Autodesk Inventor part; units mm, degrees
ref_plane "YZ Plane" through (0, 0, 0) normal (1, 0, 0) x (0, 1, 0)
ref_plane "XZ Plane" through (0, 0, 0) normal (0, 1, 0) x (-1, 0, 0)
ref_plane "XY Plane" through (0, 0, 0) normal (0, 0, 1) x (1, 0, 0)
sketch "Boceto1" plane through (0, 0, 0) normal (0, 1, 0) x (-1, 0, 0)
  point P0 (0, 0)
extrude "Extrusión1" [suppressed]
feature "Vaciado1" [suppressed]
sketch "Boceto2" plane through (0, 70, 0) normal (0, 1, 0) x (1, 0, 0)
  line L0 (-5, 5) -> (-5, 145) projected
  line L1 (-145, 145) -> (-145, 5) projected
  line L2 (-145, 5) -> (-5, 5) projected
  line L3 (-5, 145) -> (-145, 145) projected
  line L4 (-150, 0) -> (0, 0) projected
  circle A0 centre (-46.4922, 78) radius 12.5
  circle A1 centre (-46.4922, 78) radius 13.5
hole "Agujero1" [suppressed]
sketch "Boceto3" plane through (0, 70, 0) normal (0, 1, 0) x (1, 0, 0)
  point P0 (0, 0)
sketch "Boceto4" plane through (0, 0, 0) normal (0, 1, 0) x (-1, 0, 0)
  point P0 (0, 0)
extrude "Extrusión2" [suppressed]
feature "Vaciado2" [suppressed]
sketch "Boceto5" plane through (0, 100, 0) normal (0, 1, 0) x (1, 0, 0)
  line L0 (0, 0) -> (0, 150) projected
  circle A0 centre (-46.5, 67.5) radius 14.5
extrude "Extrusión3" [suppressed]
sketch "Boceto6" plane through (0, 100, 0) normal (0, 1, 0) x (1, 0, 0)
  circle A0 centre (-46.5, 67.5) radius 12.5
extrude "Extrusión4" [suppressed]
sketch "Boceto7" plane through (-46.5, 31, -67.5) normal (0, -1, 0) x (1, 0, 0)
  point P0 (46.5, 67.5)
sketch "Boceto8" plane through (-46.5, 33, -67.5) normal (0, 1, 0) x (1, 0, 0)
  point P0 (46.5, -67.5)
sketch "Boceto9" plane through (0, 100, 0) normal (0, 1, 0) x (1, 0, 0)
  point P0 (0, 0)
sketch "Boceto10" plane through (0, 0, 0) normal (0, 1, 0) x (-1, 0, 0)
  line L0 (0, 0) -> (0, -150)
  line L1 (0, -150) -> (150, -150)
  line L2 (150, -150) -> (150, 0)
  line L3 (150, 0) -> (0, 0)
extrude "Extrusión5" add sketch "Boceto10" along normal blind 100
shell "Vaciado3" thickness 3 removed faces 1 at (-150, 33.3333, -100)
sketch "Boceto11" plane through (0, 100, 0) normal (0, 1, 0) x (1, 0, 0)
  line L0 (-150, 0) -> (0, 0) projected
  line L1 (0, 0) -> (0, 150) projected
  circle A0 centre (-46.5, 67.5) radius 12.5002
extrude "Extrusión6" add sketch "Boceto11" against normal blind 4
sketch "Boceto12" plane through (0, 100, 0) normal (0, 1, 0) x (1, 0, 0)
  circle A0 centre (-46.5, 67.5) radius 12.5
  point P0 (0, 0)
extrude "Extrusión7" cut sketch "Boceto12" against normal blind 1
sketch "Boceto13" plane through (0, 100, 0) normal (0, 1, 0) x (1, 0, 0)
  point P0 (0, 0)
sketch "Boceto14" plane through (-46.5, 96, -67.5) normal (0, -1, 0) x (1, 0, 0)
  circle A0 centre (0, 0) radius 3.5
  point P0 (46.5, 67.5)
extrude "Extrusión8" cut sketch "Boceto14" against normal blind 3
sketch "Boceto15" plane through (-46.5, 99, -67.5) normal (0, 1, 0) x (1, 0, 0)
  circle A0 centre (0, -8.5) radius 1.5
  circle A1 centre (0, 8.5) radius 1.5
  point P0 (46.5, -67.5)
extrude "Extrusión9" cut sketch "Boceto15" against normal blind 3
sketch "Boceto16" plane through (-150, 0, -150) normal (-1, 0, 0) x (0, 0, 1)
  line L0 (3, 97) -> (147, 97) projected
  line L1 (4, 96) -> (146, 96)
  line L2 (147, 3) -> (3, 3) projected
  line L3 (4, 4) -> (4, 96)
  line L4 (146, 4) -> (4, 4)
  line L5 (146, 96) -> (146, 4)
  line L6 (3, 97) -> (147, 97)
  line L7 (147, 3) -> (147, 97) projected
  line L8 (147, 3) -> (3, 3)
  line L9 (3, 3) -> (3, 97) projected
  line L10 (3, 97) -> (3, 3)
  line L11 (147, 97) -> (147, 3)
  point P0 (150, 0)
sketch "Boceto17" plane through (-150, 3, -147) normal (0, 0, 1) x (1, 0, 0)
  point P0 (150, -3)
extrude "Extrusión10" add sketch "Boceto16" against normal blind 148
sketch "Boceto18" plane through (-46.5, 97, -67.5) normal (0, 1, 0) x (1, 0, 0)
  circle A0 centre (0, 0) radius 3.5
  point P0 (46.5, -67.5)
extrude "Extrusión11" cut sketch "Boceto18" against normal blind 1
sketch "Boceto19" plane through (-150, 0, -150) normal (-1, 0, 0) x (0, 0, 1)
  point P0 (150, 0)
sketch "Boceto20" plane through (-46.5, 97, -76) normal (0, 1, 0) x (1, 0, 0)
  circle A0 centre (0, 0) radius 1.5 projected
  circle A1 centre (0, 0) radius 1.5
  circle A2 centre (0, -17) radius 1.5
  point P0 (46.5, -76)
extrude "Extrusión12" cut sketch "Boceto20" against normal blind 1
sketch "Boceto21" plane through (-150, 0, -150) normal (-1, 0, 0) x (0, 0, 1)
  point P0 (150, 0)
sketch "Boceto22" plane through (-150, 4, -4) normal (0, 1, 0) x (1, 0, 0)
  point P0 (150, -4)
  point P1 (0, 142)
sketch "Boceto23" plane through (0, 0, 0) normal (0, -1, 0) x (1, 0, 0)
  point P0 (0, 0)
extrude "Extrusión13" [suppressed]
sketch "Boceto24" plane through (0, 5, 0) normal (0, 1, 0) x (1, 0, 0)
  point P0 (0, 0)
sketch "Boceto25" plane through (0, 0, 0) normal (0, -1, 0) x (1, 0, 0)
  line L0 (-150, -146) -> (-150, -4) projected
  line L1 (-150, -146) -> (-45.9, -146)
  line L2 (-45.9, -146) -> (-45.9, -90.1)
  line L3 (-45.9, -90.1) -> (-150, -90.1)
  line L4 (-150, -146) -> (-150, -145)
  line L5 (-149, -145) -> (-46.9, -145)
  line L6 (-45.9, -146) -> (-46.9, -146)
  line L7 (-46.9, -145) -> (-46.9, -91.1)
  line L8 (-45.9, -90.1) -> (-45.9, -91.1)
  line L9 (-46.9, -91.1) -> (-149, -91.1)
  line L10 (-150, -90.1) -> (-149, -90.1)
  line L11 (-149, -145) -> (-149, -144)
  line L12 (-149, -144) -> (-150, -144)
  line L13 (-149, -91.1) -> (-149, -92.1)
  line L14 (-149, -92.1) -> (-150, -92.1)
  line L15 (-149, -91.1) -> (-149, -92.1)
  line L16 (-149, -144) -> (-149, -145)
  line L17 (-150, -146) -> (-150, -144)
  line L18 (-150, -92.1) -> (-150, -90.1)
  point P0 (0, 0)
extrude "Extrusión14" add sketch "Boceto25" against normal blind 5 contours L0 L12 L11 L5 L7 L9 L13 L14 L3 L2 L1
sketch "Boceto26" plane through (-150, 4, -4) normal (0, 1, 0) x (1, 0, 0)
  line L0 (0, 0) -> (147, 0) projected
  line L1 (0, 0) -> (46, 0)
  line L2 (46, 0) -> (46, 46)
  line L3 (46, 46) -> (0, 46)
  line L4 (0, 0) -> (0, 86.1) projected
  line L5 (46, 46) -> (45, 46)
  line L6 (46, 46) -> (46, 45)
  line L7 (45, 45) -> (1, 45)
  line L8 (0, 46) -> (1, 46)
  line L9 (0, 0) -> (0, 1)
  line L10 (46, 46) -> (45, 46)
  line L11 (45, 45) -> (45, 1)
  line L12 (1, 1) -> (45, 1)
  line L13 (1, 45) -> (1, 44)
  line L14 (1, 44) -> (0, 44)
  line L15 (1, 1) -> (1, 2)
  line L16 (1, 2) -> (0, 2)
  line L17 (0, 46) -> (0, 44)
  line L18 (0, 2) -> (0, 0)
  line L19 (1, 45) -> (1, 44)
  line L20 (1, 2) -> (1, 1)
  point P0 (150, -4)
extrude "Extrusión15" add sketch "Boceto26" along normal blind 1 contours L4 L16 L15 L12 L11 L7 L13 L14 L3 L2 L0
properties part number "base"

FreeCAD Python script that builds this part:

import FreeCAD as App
import Part
import Sketcher

V = App.Vector
Q = App.Units.Quantity


def faces_at(feature, points):
    """Names of the faces that lie closest to the given points."""
    faces = feature.Shape.Faces
    near = lambda p: min(range(len(faces)), key=lambda i: faces[i].distToShape(Part.Vertex(*p))[0])
    return sorted({f"Face{near(p) + 1}" for p in points})


def add_polygon(sketch, points):
    """Adds a closed chain of lines whose ends are joined by coincident constraints."""
    first, n = sketch.GeometryCount, len(points)
    for a, b in zip(points, points[1:] + points[:1]):
        sketch.addGeometry(Part.LineSegment(App.Vector(*a, 0), App.Vector(*b, 0)), False)
    for i in range(n):
        sketch.addConstraint(Sketcher.Constraint("Coincident", first + i, 2, first + (i + 1) % n, 1))

doc = App.newDocument("Part")
body = doc.addObject("PartDesign::Body", "Body")

# Sketch on XZ plane
sketch1 = body.newObject("Sketcher::SketchObject", "Sketch")
sketch1.AttachmentSupport = (doc.getObject("XZ_Plane"), [""])
sketch1.MapMode = "FlatFace"
add_polygon(sketch1, [(-150, 0), (0, 0), (0, -150), (-150, -150)])  # lines 0-3
sketch1.addConstraint([
    Sketcher.Constraint("Horizontal", 0),
    Sketcher.Constraint("Vertical", 1),
    Sketcher.Constraint("Horizontal", 2),
    Sketcher.Constraint("Vertical", 3),
    Sketcher.Constraint("Coincident", 0, 2, -1, 1),
    Sketcher.Constraint("Equal", 2, 1),
    Sketcher.Constraint("DistanceX", 0, 1, 0, 2, Q("150 mm")),
])
pad1 = body.newObject("PartDesign::Pad", "Pad")
pad1.Profile = sketch1
pad1.Length = 100
pad1.Reversed = True
doc.recompute()

thickness = body.newObject("PartDesign::Thickness", "Thickness")
thickness.Base = (pad1, faces_at(pad1, [(-150, 33.333, -100)]))
thickness.Value = 3
thickness.Reversed = True
thickness.Join = "Intersection"

# Sketch on XZ plane
sketch2 = body.newObject("Sketcher::SketchObject", "Sketch001")
sketch2.AttachmentSupport = (doc.getObject("XZ_Plane"), [""])
sketch2.MapMode = "FlatFace"
sketch2.AttachmentOffset = App.Placement(V(0, 0, -100), App.Rotation())
sketch2.addGeometry(Part.Circle(V(-46, -68, 0), V(0, 0, 1), 13), False)
sketch2.addConstraint([
    Sketcher.Constraint("Diameter", 0, Q("25.0004 mm")),
    Sketcher.Constraint("DistanceX", 0, 3, -1, 1, Q("46.5 mm")),
    Sketcher.Constraint("DistanceY", 0, 3, -1, 1, Q("67.5 mm")),
])
pad2 = body.newObject("PartDesign::Pad", "Pad001")
pad2.Profile = sketch2
pad2.Length = 4

# Sketch on XZ plane
sketch3 = body.newObject("Sketcher::SketchObject", "Sketch002")
sketch3.AttachmentSupport = (doc.getObject("XZ_Plane"), [""])
sketch3.MapMode = "FlatFace"
sketch3.AttachmentOffset = App.Placement(V(0, 0, -100), App.Rotation())
sketch3.addGeometry(Part.Circle(V(-46, -68, 0), V(0, 0, 1), 12), False)
sketch3.addConstraint([
    Sketcher.Constraint("Diameter", 0, Q("25 mm")),
    Sketcher.Constraint("DistanceX", 0, 3, -1, 1, Q("46.5 mm")),
    Sketcher.Constraint("DistanceY", 0, 3, -1, 1, Q("67.5 mm")),
])
pocket1 = body.newObject("PartDesign::Pocket", "Pocket")
pocket1.Profile = sketch3
pocket1.Length = 1
pocket1.Reversed = True

# Sketch on XZ plane
sketch4 = body.newObject("Sketcher::SketchObject", "Sketch003")
sketch4.AttachmentSupport = (doc.getObject("XZ_Plane"), [""])
sketch4.MapMode = "FlatFace"
sketch4.AttachmentOffset = App.Placement(V(0, 0, -96), App.Rotation())
sketch4.addGeometry(Part.Circle(V(-46.5, -67.5, 0), V(0, 0, 1), 3.5), False)
sketch4.addConstraint([
    Sketcher.Constraint("Diameter", 0, Q("7 mm")),
    Sketcher.Constraint("DistanceX", 0, 3, -1, 1, Q("46.5 mm")),
    Sketcher.Constraint("DistanceY", 0, 3, -1, 1, Q("67.5 mm")),
])
pocket2 = body.newObject("PartDesign::Pocket", "Pocket001")
pocket2.Profile = sketch4
pocket2.Length = 3

# Sketch on XZ plane
sketch5 = body.newObject("Sketcher::SketchObject", "Sketch004")
sketch5.AttachmentSupport = (doc.getObject("XZ_Plane"), [""])
sketch5.MapMode = "FlatFace"
sketch5.AttachmentOffset = App.Placement(V(0, 0, -99), App.Rotation())
sketch5.addGeometry([
    Part.Circle(V(-46.5, -59, 0), V(0, 0, 1), 1.5),
    Part.Circle(V(-46.5, -76, 0), V(0, 0, 1), 1.5),
], False)
sketch5.addConstraint([
    Sketcher.Constraint("Equal", 0, 1),
    Sketcher.Constraint("Vertical", 0, 3, 1, 3),
    Sketcher.Constraint("Diameter", 0, Q("3 mm")),
    Sketcher.Constraint("DistanceY", 0, 3, -1, 1, Q("59 mm")),
    Sketcher.Constraint("DistanceY", 1, 3, -1, 1, Q("76 mm")),
    Sketcher.Constraint("DistanceX", 0, 3, -1, 1, Q("46.5 mm")),
])
pocket3 = body.newObject("PartDesign::Pocket", "Pocket002")
pocket3.Profile = sketch5
pocket3.Length = 3
pocket3.Reversed = True

# Sketch on YZ plane
sketch6 = body.newObject("Sketcher::SketchObject", "Sketch005")
sketch6.AttachmentSupport = (doc.getObject("YZ_Plane"), [""])
sketch6.MapMode = "FlatFace"
sketch6.AttachmentOffset = App.Placement(V(0, 0, -150), App.Rotation())
add_polygon(sketch6, [(97, -3), (97, -147), (3, -147), (3, -3)])  # lines 0-3
add_polygon(sketch6, [(4, -146), (96, -146), (96, -4), (4, -4)])  # lines 4-7
sketch6.addConstraint([
    Sketcher.Constraint("Vertical", 0),
    Sketcher.Constraint("Horizontal", 1),
    Sketcher.Constraint("Vertical", 2),
    Sketcher.Constraint("Horizontal", 3),
    Sketcher.Constraint("Horizontal", 4),
    Sketcher.Constraint("Vertical", 5),
    Sketcher.Constraint("Horizontal", 6),
    Sketcher.Constraint("Vertical", 7),
    Sketcher.Constraint("DistanceX", 1, 2, 1, 1, Q("94 mm")),
    Sketcher.Constraint("DistanceX", 4, 1, 4, 2, Q("92 mm")),
    Sketcher.Constraint("DistanceY", 0, 2, 0, 1, Q("144 mm")),
    Sketcher.Constraint("DistanceY", 5, 1, 5, 2, Q("142 mm")),
    Sketcher.Constraint("DistanceX", -1, 1, 0, 2, Q("97 mm")),
    Sketcher.Constraint("DistanceY", 0, 2, -1, 1, Q("147 mm")),
    Sketcher.Constraint("DistanceX", -1, 1, 4, 2, Q("96 mm")),
    Sketcher.Constraint("DistanceY", 4, 2, -1, 1, Q("146 mm")),
])
pad3 = body.newObject("PartDesign::Pad", "Pad002")
pad3.Profile = sketch6
pad3.Length = 148

# Sketch on XZ plane
sketch7 = body.newObject("Sketcher::SketchObject", "Sketch006")
sketch7.AttachmentSupport = (doc.getObject("XZ_Plane"), [""])
sketch7.MapMode = "FlatFace"
sketch7.AttachmentOffset = App.Placement(V(0, 0, -97), App.Rotation())
sketch7.addGeometry(Part.Circle(V(-46.5, -67.5, 0), V(0, 0, 1), 3.5), False)
sketch7.addConstraint([
    Sketcher.Constraint("Diameter", 0, Q("7 mm")),
    Sketcher.Constraint("DistanceX", 0, 3, -1, 1, Q("46.5 mm")),
    Sketcher.Constraint("DistanceY", 0, 3, -1, 1, Q("67.5 mm")),
])
pocket4 = body.newObject("PartDesign::Pocket", "Pocket003")
pocket4.Profile = sketch7
pocket4.Length = 1
pocket4.Reversed = True

# Sketch on XZ plane
sketch8 = body.newObject("Sketcher::SketchObject", "Sketch007")
sketch8.AttachmentSupport = (doc.getObject("XZ_Plane"), [""])
sketch8.MapMode = "FlatFace"
sketch8.AttachmentOffset = App.Placement(V(0, 0, -97), App.Rotation())
sketch8.addGeometry([
    Part.Circle(V(-46.5, -76, 0), V(0, 0, 1), 1.5),
    Part.Circle(V(-46.5, -59, 0), V(0, 0, 1), 1.5),
], False)
sketch8.addConstraint([
    Sketcher.Constraint("Equal", 0, 1),
    Sketcher.Constraint("Vertical", 0, 3, 1, 3),
    Sketcher.Constraint("Diameter", 0, Q("3 mm")),
    Sketcher.Constraint("DistanceY", 0, 3, -1, 1, Q("76 mm")),
    Sketcher.Constraint("DistanceY", 1, 3, -1, 1, Q("59 mm")),
    Sketcher.Constraint("DistanceX", 0, 3, -1, 1, Q("46.5 mm")),
])
pocket5 = body.newObject("PartDesign::Pocket", "Pocket004")
pocket5.Profile = sketch8
pocket5.Length = 1
pocket5.Reversed = True

# Sketch on XZ plane
sketch9 = body.newObject("Sketcher::SketchObject", "Sketch008")
sketch9.AttachmentSupport = (doc.getObject("XZ_Plane"), [""])
sketch9.MapMode = "FlatFace"
add_polygon(sketch9, [(-150, -144), (-150, -146), (-45.9, -146), (-45.9, -90.1), (-150, -90.1), (-150, -92.1), (-149, -92.1), (-149, -91.1), (-46.9, -91.1), (-46.9, -145), (-149, -145), (-149, -144)])  # lines 0-11
sketch9.addConstraint([
    Sketcher.Constraint("Vertical", 0),
    Sketcher.Constraint("Horizontal", 1),
    Sketcher.Constraint("Vertical", 2),
    Sketcher.Constraint("Horizontal", 3),
    Sketcher.Constraint("Vertical", 4),
    Sketcher.Constraint("Horizontal", 5),
    Sketcher.Constraint("Vertical", 6),
    Sketcher.Constraint("Horizontal", 7),
    Sketcher.Constraint("Vertical", 8),
    Sketcher.Constraint("Horizontal", 9),
    Sketcher.Constraint("Vertical", 10),
    Sketcher.Constraint("Horizontal", 11),
    Sketcher.Constraint("Vertical", 0, 2, 3, 2),
    Sketcher.Constraint("Vertical", 6, 2, 9, 2),
    Sketcher.Constraint("Equal", 0, 4),
    Sketcher.Constraint("Equal", 11, 6),
    Sketcher.Constraint("Equal", 6, 10),
    Sketcher.Constraint("DistanceX", 5, 1, 5, 2, Q("1 mm")),
    Sketcher.Constraint("DistanceY", 0, 2, 0, 1, Q("2 mm")),
    Sketcher.Constraint("DistanceX", 1, 1, 1, 2, Q("104.1 mm")),
    Sketcher.Constraint("DistanceX", 7, 1, 7, 2, Q("102.1 mm")),
    Sketcher.Constraint("DistanceY", 2, 1, 2, 2, Q("55.9 mm")),
    Sketcher.Constraint("DistanceX", 0, 2, -1, 1, Q("150 mm")),
    Sketcher.Constraint("DistanceY", 0, 2, -1, 1, Q("146 mm")),
])
pad4 = body.newObject("PartDesign::Pad", "Pad003")
pad4.Profile = sketch9
pad4.Length = 5
pad4.Reversed = True

# Sketch on XZ plane
sketch10 = body.newObject("Sketcher::SketchObject", "Sketch009")
sketch10.AttachmentSupport = (doc.getObject("XZ_Plane"), [""])
sketch10.MapMode = "FlatFace"
sketch10.AttachmentOffset = App.Placement(V(0, 0, -4), App.Rotation())
add_polygon(sketch10, [(-150, -6), (-150, -4), (-104, -4), (-104, -50), (-150, -50), (-150, -48), (-149, -48), (-149, -49), (-105, -49), (-105, -5), (-149, -5), (-149, -6)])  # lines 0-11
sketch10.addConstraint([
    Sketcher.Constraint("Vertical", 0),
    Sketcher.Constraint("Horizontal", 1),
    Sketcher.Constraint("Vertical", 2),
    Sketcher.Constraint("Horizontal", 3),
    Sketcher.Constraint("Vertical", 4),
    Sketcher.Constraint("Horizontal", 5),
    Sketcher.Constraint("Vertical", 6),
    Sketcher.Constraint("Horizontal", 7),
    Sketcher.Constraint("Vertical", 8),
    Sketcher.Constraint("Horizontal", 9),
    Sketcher.Constraint("Vertical", 10),
    Sketcher.Constraint("Horizontal", 11),
    Sketcher.Constraint("Vertical", 0, 2, 3, 2),
    Sketcher.Constraint("Vertical", 6, 2, 9, 2),
    Sketcher.Constraint("Equal", 3, 2),
    Sketcher.Constraint("Equal", 0, 4),
    Sketcher.Constraint("Equal", 11, 6),
    Sketcher.Constraint("Equal", 9, 8),
    Sketcher.Constraint("Equal", 6, 10),
    Sketcher.Constraint("DistanceX", 1, 1, 1, 2, Q("46 mm")),
    Sketcher.Constraint("DistanceX", 5, 1, 5, 2, Q("1 mm")),
    Sketcher.Constraint("DistanceX", 7, 1, 7, 2, Q("44 mm")),
    Sketcher.Constraint("DistanceX", 0, 2, -1, 1, Q("150 mm")),
    Sketcher.Constraint("DistanceY", 0, 2, -1, 1, Q("4 mm")),
])
pad5 = body.newObject("PartDesign::Pad", "Pad004")
pad5.Profile = sketch10
pad5.Length = 1
pad5.Reversed = True

doc.recompute()
